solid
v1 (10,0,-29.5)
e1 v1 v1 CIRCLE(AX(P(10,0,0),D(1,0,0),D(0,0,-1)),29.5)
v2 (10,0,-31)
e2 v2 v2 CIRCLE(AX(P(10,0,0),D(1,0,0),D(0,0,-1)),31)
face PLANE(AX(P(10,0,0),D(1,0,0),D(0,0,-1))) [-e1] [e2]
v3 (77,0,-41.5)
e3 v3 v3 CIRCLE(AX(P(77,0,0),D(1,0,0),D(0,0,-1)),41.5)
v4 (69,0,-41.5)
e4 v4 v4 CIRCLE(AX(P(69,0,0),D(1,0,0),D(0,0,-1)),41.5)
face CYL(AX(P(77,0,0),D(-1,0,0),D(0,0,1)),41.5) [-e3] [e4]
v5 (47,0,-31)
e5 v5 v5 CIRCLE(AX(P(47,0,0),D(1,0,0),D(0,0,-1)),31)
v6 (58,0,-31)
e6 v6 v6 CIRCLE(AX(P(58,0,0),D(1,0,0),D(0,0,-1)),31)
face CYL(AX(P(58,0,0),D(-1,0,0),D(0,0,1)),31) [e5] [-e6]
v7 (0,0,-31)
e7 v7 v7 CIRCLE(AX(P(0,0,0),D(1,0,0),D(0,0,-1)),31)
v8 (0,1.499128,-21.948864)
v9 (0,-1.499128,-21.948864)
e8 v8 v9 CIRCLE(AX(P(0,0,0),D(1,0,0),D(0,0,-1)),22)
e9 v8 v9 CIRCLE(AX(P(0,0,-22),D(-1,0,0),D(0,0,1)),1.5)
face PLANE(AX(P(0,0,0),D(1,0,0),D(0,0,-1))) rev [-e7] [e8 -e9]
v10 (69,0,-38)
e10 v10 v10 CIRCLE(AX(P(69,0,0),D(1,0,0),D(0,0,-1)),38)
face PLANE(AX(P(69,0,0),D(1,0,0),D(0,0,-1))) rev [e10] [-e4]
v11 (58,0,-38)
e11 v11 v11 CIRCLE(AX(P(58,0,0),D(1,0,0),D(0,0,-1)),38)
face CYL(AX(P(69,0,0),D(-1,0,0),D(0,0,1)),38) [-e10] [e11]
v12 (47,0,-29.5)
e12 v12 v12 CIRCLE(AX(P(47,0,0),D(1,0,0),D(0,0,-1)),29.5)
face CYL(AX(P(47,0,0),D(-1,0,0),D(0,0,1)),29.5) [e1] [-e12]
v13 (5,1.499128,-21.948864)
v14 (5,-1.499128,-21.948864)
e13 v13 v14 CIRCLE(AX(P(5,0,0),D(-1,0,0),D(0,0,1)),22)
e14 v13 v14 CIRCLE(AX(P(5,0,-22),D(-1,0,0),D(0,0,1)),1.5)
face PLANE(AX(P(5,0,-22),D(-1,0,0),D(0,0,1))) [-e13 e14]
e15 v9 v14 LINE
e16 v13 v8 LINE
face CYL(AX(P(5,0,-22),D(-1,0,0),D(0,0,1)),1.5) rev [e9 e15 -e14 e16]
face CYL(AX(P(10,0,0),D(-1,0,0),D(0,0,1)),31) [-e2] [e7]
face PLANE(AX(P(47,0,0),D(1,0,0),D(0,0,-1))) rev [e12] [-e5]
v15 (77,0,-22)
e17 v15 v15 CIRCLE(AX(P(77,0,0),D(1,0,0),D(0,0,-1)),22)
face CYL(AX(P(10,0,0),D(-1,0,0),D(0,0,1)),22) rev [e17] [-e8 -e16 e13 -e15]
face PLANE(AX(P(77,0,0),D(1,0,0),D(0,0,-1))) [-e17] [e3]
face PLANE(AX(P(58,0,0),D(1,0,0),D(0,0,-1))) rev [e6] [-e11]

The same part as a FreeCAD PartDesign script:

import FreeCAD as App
import Part
import Sketcher
Q = App.Units.Quantity

doc = App.newDocument("Part")
body = doc.addObject("PartDesign::Body", "Body")

sketch1 = body.newObject("Sketcher::SketchObject", "Sketch")
sketch1.AttachmentSupport = (doc.getObject("YZ_Plane"), [""])
sketch1.MapMode = "FlatFace"
sketch1.addGeometry([
    Part.Circle(App.Vector(0, 0, 0), App.Vector(0, 0, 1), 31),
    Part.Circle(App.Vector(0, 0, 0), App.Vector(0, 0, 1), 22),
], False)
sketch1.addConstraint([
    Sketcher.Constraint("Coincident", 0, 3, -1, 1),
    Sketcher.Constraint("Coincident", 1, 3, -1, 1),
    Sketcher.Constraint("Diameter", 0, Q("62 mm")),
    Sketcher.Constraint("Diameter", 1, Q("44 mm")),
])
pad1 = body.newObject("PartDesign::Pad", "Pad")
pad1.Profile = sketch1
pad1.Length = 10

sketch2 = body.newObject("Sketcher::SketchObject", "Sketch001")
sketch2.AttachmentSupport = (doc.getObject("YZ_Plane"), [""])
sketch2.MapMode = "FlatFace"
sketch2.AttachmentOffset = App.Placement(App.Vector(0, 0, 10), App.Rotation())
sketch2.addGeometry([
    Part.Circle(App.Vector(0, 0, 0), App.Vector(0, 0, 1), 30),
    Part.Circle(App.Vector(0, 0, 0), App.Vector(0, 0, 1), 22),
], False)
sketch2.addConstraint([
    Sketcher.Constraint("Coincident", 0, 3, -1, 1),
    Sketcher.Constraint("Coincident", 1, 3, -1, 1),
    Sketcher.Constraint("Diameter", 0, Q("59 mm")),
    Sketcher.Constraint("Diameter", 1, Q("44 mm")),
])
pad2 = body.newObject("PartDesign::Pad", "Pad001")
pad2.Profile = sketch2
pad2.Length = 37

sketch3 = body.newObject("Sketcher::SketchObject", "Sketch002")
sketch3.AttachmentSupport = (doc.getObject("YZ_Plane"), [""])
sketch3.MapMode = "FlatFace"
sketch3.AttachmentOffset = App.Placement(App.Vector(0, 0, 47), App.Rotation())
sketch3.addGeometry([
    Part.Circle(App.Vector(0, 0, 0), App.Vector(0, 0, 1), 31),
    Part.Circle(App.Vector(0, 0, 0), App.Vector(0, 0, 1), 22),
], False)
sketch3.addConstraint([
    Sketcher.Constraint("Coincident", 0, 3, -1, 1),
    Sketcher.Constraint("Coincident", 1, 3, -1, 1),
    Sketcher.Constraint("Diameter", 0, Q("62 mm")),
    Sketcher.Constraint("Diameter", 1, Q("44 mm")),
])
pad3 = body.newObject("PartDesign::Pad", "Pad002")
pad3.Profile = sketch3
pad3.Length = 11

sketch4 = body.newObject("Sketcher::SketchObject", "Sketch003")
sketch4.AttachmentSupport = (doc.getObject("YZ_Plane"), [""])
sketch4.MapMode = "FlatFace"
sketch4.AttachmentOffset = App.Placement(App.Vector(0, 0, 58), App.Rotation())
sketch4.addGeometry([
    Part.Circle(App.Vector(0, 0, 0), App.Vector(0, 0, 1), 38),
    Part.Circle(App.Vector(0, 0, 0), App.Vector(0, 0, 1), 22),
], False)
sketch4.addConstraint([
    Sketcher.Constraint("Coincident", 0, 3, -1, 1),
    Sketcher.Constraint("Coincident", 1, 3, -1, 1),
    Sketcher.Constraint("Diameter", 0, Q("76 mm")),
    Sketcher.Constraint("Diameter", 1, Q("44 mm")),
])
pad4 = body.newObject("PartDesign::Pad", "Pad003")
pad4.Profile = sketch4
pad4.Length = 11

sketch5 = body.newObject("Sketcher::SketchObject", "Sketch004")
sketch5.AttachmentSupport = (doc.getObject("YZ_Plane"), [""])
sketch5.MapMode = "FlatFace"
sketch5.AttachmentOffset = App.Placement(App.Vector(0, 0, 69), App.Rotation())
sketch5.addGeometry([
    Part.Circle(App.Vector(0, 0, 0), App.Vector(0, 0, 1), 42),
    Part.Circle(App.Vector(0, 0, 0), App.Vector(0, 0, 1), 22),
], False)
sketch5.addConstraint([
    Sketcher.Constraint("Coincident", 0, 3, -1, 1),
    Sketcher.Constraint("Coincident", 1, 3, -1, 1),
    Sketcher.Constraint("Diameter", 0, Q("83 mm")),
    Sketcher.Constraint("Diameter", 1, Q("44 mm")),
])
pad5 = body.newObject("PartDesign::Pad", "Pad004")
pad5.Profile = sketch5
pad5.Length = 8

sketch6 = body.newObject("Sketcher::SketchObject", "Sketch005")
sketch6.AttachmentSupport = (doc.getObject("YZ_Plane"), [""])
sketch6.MapMode = "FlatFace"
sketch6.addGeometry(Part.Circle(App.Vector(0, -22, 0), App.Vector(0, 0, 1), 1.5), False)
sketch6.addConstraint([
    Sketcher.Constraint("PointOnObject", 0, 3, -2),
    Sketcher.Constraint("Diameter", 0, Q("3 mm")),
    Sketcher.Constraint("DistanceY", 0, 3, -1, 1, Q("22 mm")),
])
pocket1 = body.newObject("PartDesign::Pocket", "Pocket")
pocket1.Profile = sketch6
pocket1.Length = 5
pocket1.Reversed = True

doc.recompute()
